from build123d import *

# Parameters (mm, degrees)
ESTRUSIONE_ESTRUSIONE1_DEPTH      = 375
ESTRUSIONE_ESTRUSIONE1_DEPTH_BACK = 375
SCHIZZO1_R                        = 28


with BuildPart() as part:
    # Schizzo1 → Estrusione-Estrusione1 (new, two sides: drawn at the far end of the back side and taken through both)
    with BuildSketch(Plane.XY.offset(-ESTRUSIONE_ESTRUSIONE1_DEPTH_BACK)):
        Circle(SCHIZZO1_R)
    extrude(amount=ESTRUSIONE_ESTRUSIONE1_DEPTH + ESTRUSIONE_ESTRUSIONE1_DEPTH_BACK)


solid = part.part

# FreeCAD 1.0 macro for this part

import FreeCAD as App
import Part
import Sketcher
from FreeCAD import Vector

doc = App.newDocument("Part")
body = doc.addObject("PartDesign::Body", "Body")

sketch1 = body.newObject("Sketcher::SketchObject", "Sketch")
sketch1.AttachmentSupport = (doc.getObject("XY_Plane"), [""])
sketch1.MapMode = "FlatFace"
sketch1.addGeometry(Part.Circle(Vector(0, 0, 0), Vector(0, 0, 1), 28), False)
sketch1.addConstraint(Sketcher.Constraint("Coincident", 0, 3, -1, 1))
sketch1.addConstraint(Sketcher.Constraint("Diameter", 0, 56.0))
pad1 = body.newObject("PartDesign::Pad", "Pad")
pad1.Profile = sketch1
pad1.Type = "TwoLengths"
pad1.Length = 375
pad1.Length2 = 375

doc.recompute()
